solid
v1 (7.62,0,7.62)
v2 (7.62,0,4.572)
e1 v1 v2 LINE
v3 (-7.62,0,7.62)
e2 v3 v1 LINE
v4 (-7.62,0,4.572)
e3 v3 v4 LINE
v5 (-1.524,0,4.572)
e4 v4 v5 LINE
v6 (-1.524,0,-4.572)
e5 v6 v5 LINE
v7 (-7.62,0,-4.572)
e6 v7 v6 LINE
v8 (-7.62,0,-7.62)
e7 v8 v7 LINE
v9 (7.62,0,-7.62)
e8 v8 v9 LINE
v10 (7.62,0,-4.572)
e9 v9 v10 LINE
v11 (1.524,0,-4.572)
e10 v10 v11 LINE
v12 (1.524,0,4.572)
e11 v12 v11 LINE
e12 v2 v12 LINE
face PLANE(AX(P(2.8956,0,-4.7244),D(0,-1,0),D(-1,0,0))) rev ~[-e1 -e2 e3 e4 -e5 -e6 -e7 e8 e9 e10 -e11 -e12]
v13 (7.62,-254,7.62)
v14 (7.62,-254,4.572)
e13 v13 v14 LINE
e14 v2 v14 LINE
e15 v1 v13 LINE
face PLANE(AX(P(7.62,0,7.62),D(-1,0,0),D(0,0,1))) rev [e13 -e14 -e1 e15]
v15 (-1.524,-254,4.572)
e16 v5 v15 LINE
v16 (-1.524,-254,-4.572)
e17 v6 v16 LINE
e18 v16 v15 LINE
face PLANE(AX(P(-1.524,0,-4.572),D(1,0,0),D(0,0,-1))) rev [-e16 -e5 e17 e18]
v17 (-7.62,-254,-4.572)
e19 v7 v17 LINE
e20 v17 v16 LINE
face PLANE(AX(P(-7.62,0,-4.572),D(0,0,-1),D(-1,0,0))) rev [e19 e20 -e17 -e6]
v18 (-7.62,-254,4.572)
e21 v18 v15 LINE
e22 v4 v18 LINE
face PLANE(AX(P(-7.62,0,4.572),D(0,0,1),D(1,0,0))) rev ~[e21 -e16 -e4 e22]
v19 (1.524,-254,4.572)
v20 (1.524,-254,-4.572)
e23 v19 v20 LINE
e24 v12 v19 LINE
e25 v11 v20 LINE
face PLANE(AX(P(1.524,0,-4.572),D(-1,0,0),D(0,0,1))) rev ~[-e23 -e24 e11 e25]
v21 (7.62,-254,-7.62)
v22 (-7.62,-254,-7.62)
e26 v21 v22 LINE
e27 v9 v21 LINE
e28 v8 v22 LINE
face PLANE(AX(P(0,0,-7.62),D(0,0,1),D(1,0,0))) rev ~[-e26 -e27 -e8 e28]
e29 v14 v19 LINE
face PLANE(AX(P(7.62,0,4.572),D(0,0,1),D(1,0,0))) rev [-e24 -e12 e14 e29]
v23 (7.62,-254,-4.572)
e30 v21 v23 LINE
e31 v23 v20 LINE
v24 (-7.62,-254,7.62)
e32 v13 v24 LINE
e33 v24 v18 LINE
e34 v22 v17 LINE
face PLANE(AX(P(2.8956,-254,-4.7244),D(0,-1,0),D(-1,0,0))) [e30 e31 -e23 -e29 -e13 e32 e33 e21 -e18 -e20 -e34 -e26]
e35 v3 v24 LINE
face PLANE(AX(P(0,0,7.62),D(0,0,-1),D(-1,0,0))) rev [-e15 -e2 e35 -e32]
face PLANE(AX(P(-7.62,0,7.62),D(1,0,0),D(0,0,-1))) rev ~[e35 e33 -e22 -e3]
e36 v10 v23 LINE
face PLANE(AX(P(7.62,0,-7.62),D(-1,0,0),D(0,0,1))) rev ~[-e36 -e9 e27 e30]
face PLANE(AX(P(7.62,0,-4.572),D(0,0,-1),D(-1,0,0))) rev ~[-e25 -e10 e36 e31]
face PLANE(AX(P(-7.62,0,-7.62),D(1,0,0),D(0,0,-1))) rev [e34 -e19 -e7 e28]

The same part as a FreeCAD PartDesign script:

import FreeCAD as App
import Part
import Sketcher

V = App.Vector
Q = App.Units.Quantity


def add_polygon(sketch, points):
    """Adds a closed chain of lines whose ends are joined by coincident constraints."""
    first, n = sketch.GeometryCount, len(points)
    for a, b in zip(points, points[1:] + points[:1]):
        sketch.addGeometry(Part.LineSegment(App.Vector(*a, 0), App.Vector(*b, 0)), False)
    for i in range(n):
        sketch.addConstraint(Sketcher.Constraint("Coincident", first + i, 2, first + (i + 1) % n, 1))

doc = App.newDocument("Part")
body = doc.addObject("PartDesign::Body", "Body")

sketch1 = body.newObject("Sketcher::SketchObject", "Sketch")
sketch1.AttachmentSupport = (doc.getObject("XZ_Plane"), [""])
sketch1.MapMode = "FlatFace"
add_polygon(sketch1, [(-1.5, 0), (0, 0), (0, 7.6), (-7.6, 7.6), (-7.6, 4.6), (-1.5, 4.6)])
sketch1.addConstraint([
    Sketcher.Constraint("Horizontal", 0),
    Sketcher.Constraint("Vertical", 1),
    Sketcher.Constraint("Horizontal", 2),
    Sketcher.Constraint("Vertical", 3),
    Sketcher.Constraint("Horizontal", 4),
    Sketcher.Constraint("Vertical", 5),
    Sketcher.Constraint("Coincident", 0, 2, -1, 1),
    Sketcher.Constraint("Equal", 2, 1),
    Sketcher.Constraint("DistanceX", 2, 2, 2, 1, Q("0.3 in")),
    Sketcher.Constraint("DistanceX", 0, 1, 0, 2, Q("0.06 in")),
    Sketcher.Constraint("DistanceY", 3, 2, 3, 1, Q("0.12 in")),
])
pad1 = body.newObject("PartDesign::Pad", "Pad")
pad1.Profile = sketch1
pad1.Length = Q("10 in")
body2 = doc.addObject("PartDesign::Body", "Body001")
doc.recompute()

body2.BaseFeature = body
doc.recompute()

mirroring = doc.addObject("Part::Mirroring", "Mirroring")
mirroring.Source = body
mirroring.Base = V(0, -127, 3.81)
mirroring.Normal = V(1, 0, 0)
body3 = doc.addObject("PartDesign::Body", "Body002")
body3.BaseFeature = mirroring
boolean = body2.newObject("PartDesign::Boolean", "Boolean")
boolean.Type = "Fuse"
boolean.addObjects([body3])
doc.recompute()
body4 = doc.addObject("PartDesign::Body", "Body003")
doc.recompute()

body4.BaseFeature = body2
doc.recompute()

mirroring2 = doc.addObject("Part::Mirroring", "Mirroring001")
mirroring2.Source = body2
mirroring2.Base = V(0, -127, 0)
mirroring2.Normal = V(0, 0, -1)
body5 = doc.addObject("PartDesign::Body", "Body004")
body5.BaseFeature = mirroring2
boolean2 = body4.newObject("PartDesign::Boolean", "Boolean001")
boolean2.Type = "Fuse"
boolean2.addObjects([body5])
doc.recompute()
mirroring.Visibility = False
mirroring2.Visibility = False

doc.recompute()
